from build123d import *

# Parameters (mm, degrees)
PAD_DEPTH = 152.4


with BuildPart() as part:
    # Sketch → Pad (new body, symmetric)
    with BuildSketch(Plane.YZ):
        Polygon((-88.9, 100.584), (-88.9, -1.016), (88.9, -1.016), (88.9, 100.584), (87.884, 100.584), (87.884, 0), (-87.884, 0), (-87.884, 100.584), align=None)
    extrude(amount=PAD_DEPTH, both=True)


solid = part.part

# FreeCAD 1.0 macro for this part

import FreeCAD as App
import Part
import Sketcher
Q = App.Units.Quantity

doc = App.newDocument("Part")
body = doc.addObject("PartDesign::Body", "Body")

sketch1 = doc.addObject("Sketcher::SketchObject", "Sketch")
body.addObject(sketch1)
sketch1.AttachmentSupport = (doc.YZ_Plane, [""])
sketch1.MapMode = "FlatFace"
sketch1.addGeometry([
    Part.LineSegment(App.Vector(-88.9, 100.6, 0), App.Vector(-88.9, -1, 0)),
    Part.LineSegment(App.Vector(-88.9, -1, 0), App.Vector(88.9, -1, 0)),
    Part.LineSegment(App.Vector(88.9, -1, 0), App.Vector(88.9, 100.6, 0)),
    Part.LineSegment(App.Vector(88.9, 100.6, 0), App.Vector(87.9, 100.6, 0)),
    Part.LineSegment(App.Vector(87.9, 100.6, 0), App.Vector(87.9, 0, 0)),
    Part.LineSegment(App.Vector(87.9, 0, 0), App.Vector(-87.9, 0, 0)),
    Part.LineSegment(App.Vector(-87.9, 0, 0), App.Vector(-87.9, 100.6, 0)),
    Part.LineSegment(App.Vector(-87.9, 100.6, 0), App.Vector(-88.9, 100.6, 0)),
], False)
sketch1.addConstraint([
    Sketcher.Constraint("Coincident", 0, 2, 1, 1),
    Sketcher.Constraint("Coincident", 1, 2, 2, 1),
    Sketcher.Constraint("Coincident", 2, 2, 3, 1),
    Sketcher.Constraint("Coincident", 3, 2, 4, 1),
    Sketcher.Constraint("Coincident", 4, 2, 5, 1),
    Sketcher.Constraint("Coincident", 5, 2, 6, 1),
    Sketcher.Constraint("Coincident", 6, 2, 7, 1),
    Sketcher.Constraint("Coincident", 7, 2, 0, 1),
    Sketcher.Constraint("Vertical", 0),
    Sketcher.Constraint("Horizontal", 1),
    Sketcher.Constraint("Vertical", 2),
    Sketcher.Constraint("Horizontal", 3),
    Sketcher.Constraint("Vertical", 4),
    Sketcher.Constraint("Horizontal", 5),
    Sketcher.Constraint("Vertical", 6),
    Sketcher.Constraint("Horizontal", 7),
    Sketcher.Constraint("Symmetric", 4, 2, 5, 2, -1, 1),
    Sketcher.Constraint("Symmetric", 2, 2, 7, 2, -2),
    Sketcher.Constraint("DistanceX", 1, 1, 1, 2, Q("7 in")),
    Sketcher.Constraint("DistanceY", 0, 2, 0, 1, Q("4 in")),
    Sketcher.Constraint("DistanceX", 3, 2, 3, 1, Q("0.04 in")),
    Sketcher.Constraint("DistanceY", 4, 2, 4, 1, Q("3.96 in")),
])
pad1 = doc.addObject("PartDesign::Pad", "Pad")
body.addObject(pad1)
pad1.Profile = sketch1
pad1.Length = Q("12 in")
pad1.Midplane = True

doc.recompute()
